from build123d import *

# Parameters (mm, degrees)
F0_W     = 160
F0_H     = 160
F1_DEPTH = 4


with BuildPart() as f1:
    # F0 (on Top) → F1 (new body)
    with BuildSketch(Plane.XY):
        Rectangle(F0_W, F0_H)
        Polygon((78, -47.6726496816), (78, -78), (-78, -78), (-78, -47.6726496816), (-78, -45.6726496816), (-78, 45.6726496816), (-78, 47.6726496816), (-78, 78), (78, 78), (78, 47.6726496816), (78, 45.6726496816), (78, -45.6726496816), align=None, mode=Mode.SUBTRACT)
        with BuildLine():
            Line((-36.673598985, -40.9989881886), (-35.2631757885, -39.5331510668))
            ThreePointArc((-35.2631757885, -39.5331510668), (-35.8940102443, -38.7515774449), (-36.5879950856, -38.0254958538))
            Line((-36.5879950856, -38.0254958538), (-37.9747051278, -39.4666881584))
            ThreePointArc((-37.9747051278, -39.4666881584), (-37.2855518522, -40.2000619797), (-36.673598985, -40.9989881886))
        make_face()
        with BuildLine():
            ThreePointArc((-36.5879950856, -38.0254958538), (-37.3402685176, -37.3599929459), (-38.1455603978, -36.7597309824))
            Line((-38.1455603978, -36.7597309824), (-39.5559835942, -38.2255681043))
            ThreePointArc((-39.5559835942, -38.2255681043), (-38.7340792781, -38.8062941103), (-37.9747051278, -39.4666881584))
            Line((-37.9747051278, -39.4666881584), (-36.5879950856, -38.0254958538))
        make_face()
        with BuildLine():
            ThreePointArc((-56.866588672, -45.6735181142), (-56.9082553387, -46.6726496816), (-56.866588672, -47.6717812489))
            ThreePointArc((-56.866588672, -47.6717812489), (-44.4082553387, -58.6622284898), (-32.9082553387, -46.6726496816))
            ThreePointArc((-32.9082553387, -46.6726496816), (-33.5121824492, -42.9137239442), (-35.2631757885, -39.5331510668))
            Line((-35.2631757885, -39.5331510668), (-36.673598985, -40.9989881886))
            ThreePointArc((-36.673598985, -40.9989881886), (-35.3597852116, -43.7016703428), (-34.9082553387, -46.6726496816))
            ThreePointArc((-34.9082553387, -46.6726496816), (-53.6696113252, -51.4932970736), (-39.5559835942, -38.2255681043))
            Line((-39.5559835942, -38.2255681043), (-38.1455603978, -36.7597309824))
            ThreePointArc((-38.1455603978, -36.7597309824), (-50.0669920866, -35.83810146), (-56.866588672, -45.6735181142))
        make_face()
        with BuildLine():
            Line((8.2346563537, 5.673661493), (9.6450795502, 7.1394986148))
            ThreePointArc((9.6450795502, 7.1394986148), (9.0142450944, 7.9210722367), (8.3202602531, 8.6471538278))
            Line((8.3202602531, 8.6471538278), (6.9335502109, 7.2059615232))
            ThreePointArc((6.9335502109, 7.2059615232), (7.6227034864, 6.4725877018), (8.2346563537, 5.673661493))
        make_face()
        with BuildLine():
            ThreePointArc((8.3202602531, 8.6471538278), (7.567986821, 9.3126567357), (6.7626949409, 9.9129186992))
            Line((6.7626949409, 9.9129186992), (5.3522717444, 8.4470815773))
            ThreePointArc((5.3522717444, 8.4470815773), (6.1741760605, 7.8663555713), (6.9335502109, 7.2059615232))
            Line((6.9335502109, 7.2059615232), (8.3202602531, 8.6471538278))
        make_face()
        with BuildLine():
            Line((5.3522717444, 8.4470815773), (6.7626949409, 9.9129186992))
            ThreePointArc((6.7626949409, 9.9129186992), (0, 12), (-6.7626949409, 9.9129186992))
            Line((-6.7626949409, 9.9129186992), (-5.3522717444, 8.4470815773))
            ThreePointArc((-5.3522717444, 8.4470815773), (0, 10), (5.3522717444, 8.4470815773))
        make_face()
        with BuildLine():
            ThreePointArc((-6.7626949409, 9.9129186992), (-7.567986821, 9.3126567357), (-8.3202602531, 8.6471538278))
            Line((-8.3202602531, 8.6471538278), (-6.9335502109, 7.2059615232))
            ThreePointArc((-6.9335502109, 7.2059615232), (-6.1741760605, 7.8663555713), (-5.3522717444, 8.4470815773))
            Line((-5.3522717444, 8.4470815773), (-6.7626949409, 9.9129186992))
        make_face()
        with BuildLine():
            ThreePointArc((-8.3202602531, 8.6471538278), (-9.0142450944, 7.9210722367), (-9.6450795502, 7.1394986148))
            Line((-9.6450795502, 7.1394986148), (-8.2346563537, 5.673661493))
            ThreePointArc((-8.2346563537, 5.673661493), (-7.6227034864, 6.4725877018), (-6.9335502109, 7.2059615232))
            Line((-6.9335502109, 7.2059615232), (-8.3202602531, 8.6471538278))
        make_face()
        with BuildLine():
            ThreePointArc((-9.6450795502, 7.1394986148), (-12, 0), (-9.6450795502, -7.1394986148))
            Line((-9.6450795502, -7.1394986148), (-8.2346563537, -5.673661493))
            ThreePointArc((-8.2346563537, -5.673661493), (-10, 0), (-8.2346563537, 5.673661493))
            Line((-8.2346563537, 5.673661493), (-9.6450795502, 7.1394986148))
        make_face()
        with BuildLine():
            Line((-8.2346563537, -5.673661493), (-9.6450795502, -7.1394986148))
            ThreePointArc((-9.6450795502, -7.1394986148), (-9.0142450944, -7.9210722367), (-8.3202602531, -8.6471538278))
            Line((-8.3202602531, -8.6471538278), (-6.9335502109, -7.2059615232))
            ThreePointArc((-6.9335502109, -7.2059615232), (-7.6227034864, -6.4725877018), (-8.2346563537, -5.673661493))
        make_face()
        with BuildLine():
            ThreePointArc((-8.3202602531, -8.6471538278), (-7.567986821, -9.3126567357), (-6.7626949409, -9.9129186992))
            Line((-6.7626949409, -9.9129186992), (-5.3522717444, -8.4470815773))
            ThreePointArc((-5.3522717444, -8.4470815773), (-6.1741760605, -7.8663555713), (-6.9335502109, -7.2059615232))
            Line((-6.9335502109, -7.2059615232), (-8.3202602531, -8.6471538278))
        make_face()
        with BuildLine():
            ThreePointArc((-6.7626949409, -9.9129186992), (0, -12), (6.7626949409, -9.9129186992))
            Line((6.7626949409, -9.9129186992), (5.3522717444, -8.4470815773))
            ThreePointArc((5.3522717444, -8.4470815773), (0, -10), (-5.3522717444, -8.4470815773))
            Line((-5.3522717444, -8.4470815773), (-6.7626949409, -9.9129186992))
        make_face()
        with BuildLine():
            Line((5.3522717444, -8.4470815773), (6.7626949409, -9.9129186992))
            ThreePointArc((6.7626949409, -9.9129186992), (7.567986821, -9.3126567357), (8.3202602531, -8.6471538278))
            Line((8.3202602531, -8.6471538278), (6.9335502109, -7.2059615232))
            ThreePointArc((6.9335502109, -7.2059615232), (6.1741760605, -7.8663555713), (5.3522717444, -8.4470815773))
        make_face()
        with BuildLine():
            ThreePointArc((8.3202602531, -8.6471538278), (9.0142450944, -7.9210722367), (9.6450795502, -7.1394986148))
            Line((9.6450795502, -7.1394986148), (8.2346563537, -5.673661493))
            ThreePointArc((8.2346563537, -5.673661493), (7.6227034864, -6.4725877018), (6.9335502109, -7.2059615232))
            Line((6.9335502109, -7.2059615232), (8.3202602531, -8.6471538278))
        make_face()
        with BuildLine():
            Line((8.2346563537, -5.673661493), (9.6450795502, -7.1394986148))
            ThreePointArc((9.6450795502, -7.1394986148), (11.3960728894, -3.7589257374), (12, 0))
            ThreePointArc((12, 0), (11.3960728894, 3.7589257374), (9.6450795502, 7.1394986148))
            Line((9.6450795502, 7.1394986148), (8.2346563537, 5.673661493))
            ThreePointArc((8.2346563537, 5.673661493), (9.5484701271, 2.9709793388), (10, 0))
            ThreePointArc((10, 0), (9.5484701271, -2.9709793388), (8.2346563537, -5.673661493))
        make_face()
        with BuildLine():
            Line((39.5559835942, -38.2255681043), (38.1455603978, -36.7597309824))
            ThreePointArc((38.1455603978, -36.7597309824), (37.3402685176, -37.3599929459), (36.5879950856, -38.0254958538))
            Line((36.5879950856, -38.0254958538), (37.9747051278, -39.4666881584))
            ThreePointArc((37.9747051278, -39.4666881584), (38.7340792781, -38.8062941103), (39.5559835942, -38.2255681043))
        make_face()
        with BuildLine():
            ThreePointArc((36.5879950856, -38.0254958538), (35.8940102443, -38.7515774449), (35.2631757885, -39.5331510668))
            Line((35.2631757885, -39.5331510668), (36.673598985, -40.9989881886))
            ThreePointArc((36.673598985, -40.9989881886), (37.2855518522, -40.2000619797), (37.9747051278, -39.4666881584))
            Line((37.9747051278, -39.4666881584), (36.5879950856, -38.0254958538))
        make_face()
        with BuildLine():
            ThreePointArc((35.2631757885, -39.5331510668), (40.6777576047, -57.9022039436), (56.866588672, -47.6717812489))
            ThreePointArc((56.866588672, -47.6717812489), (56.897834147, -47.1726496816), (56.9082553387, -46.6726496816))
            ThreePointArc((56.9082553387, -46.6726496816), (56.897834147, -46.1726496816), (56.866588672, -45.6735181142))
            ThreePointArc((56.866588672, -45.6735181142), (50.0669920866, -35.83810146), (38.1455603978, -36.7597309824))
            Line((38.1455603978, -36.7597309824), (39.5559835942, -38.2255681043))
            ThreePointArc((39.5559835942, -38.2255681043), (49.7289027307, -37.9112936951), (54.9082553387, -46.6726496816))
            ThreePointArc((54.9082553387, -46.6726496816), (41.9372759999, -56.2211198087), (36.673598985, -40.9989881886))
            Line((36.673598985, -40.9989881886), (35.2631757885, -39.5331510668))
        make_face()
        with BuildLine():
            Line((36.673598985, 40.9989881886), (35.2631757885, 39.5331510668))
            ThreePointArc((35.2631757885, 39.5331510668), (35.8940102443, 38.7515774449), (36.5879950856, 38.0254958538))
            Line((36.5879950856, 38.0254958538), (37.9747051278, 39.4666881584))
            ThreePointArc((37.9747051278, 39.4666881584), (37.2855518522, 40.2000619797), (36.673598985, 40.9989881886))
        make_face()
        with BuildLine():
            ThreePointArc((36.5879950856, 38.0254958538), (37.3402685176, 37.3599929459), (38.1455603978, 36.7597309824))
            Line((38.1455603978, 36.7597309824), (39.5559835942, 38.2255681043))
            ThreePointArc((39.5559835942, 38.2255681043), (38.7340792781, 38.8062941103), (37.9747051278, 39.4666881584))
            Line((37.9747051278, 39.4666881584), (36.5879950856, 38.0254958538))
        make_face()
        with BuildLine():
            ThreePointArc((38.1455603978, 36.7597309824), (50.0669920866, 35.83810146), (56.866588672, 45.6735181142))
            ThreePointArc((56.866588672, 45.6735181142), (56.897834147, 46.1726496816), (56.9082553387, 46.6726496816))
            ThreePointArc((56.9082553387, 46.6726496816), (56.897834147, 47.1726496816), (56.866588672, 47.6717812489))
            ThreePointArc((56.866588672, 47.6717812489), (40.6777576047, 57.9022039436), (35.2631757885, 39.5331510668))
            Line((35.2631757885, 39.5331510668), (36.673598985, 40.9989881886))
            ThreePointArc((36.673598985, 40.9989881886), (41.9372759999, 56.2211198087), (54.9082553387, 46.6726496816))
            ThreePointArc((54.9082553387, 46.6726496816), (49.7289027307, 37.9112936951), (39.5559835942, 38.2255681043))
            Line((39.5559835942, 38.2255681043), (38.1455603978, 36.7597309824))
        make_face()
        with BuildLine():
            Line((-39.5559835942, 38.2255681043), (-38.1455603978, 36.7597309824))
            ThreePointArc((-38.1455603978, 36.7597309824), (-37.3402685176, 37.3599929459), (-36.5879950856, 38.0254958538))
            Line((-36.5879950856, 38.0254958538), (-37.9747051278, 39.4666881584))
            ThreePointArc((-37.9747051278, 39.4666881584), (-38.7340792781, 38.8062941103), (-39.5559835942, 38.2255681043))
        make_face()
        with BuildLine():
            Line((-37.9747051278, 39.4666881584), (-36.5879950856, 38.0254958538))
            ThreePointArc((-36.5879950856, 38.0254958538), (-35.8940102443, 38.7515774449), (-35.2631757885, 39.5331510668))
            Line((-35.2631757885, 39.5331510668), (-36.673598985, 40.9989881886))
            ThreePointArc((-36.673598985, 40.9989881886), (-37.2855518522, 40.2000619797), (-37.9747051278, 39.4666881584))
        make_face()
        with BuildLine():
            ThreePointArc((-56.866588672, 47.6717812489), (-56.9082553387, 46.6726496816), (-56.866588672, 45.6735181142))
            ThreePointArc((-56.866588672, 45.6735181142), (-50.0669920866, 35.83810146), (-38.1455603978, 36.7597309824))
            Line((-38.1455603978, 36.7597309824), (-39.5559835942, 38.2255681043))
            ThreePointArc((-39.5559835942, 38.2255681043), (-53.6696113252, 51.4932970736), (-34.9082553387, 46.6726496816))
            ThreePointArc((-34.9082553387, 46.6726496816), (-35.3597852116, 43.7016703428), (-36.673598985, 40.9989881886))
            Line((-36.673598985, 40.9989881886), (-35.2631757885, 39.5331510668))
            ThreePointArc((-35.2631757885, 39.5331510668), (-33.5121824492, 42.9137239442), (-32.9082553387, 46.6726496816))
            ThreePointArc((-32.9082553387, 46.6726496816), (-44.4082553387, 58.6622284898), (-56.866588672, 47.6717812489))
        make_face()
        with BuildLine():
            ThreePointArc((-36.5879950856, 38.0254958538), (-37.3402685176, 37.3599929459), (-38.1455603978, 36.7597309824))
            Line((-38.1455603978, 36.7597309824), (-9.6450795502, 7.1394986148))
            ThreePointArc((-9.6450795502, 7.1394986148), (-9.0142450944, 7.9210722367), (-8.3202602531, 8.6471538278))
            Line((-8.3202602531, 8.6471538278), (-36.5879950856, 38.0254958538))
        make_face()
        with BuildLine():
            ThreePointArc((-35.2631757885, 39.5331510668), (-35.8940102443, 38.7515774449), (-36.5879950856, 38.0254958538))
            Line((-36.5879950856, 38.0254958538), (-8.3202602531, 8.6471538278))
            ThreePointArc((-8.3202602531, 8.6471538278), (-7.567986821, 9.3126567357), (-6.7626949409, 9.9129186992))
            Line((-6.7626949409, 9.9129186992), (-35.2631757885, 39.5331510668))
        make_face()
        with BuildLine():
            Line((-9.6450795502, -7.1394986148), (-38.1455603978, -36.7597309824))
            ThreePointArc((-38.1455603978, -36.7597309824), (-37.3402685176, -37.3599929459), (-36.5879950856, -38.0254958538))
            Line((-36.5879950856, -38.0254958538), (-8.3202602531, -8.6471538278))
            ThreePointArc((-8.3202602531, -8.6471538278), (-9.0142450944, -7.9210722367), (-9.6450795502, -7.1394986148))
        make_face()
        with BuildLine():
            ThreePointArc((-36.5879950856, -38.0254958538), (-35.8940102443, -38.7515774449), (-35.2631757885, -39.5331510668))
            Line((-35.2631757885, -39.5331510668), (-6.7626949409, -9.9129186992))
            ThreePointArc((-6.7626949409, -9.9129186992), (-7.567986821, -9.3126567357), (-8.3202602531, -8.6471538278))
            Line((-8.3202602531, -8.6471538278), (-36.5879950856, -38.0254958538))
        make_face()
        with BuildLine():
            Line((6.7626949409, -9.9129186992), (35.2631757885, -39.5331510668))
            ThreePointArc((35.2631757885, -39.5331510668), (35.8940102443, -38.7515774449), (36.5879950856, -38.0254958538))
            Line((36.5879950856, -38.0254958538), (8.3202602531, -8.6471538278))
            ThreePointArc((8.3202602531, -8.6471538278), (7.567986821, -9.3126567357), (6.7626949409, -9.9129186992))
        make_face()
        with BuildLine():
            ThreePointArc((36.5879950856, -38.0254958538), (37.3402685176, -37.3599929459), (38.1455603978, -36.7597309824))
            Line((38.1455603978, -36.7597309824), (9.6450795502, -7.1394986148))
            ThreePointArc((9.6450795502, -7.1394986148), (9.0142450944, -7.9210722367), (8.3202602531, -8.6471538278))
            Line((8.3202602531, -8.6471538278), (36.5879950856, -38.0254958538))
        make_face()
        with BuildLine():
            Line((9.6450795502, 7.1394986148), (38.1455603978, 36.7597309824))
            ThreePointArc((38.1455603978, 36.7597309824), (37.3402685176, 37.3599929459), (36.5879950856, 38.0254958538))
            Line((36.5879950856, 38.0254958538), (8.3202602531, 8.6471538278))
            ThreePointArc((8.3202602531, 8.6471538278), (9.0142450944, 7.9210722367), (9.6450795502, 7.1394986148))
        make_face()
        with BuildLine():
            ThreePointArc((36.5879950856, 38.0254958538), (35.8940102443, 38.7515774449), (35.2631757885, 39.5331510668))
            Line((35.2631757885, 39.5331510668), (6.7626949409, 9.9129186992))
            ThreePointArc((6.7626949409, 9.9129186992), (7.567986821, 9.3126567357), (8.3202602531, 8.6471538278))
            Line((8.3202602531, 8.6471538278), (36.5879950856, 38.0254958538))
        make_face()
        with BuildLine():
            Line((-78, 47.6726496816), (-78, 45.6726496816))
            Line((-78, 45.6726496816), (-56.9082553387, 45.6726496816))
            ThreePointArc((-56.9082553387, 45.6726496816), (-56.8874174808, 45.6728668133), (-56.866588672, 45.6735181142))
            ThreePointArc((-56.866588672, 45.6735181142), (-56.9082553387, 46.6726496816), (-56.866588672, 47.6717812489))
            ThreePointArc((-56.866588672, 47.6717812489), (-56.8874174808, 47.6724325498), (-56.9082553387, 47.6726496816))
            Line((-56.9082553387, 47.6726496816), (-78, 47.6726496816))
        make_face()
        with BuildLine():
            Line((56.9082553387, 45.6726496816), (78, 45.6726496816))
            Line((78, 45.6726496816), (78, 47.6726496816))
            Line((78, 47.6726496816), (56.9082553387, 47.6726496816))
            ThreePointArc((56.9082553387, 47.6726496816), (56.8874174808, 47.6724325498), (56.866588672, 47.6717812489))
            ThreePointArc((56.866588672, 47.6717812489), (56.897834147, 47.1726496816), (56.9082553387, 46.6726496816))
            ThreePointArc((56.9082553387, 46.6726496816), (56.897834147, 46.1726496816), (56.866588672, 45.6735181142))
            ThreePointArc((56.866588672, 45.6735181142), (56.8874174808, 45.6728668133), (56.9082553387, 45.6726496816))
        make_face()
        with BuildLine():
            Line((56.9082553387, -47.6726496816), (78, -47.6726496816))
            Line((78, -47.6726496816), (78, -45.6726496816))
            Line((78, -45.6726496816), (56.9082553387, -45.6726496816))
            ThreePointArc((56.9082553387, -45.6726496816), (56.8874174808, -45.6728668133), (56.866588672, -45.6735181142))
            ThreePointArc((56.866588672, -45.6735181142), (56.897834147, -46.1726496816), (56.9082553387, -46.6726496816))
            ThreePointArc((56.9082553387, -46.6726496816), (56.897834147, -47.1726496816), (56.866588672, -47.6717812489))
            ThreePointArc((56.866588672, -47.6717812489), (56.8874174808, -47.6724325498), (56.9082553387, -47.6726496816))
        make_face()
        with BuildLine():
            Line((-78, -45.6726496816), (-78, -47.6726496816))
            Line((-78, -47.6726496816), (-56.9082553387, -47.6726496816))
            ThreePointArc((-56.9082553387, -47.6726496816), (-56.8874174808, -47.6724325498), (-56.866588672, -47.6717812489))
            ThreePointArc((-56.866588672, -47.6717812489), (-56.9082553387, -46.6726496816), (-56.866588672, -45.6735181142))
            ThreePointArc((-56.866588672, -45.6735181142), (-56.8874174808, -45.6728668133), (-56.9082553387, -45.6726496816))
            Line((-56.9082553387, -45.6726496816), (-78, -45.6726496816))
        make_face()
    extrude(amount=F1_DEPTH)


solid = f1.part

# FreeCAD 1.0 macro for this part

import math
import FreeCAD as App
import Part
import Sketcher
Q = App.Units.Quantity

doc = App.newDocument("Part")
body = doc.addObject("PartDesign::Body", "Body")

# Sketch on XY plane
sketch1 = body.newObject("Sketcher::SketchObject", "Sketch")
sketch1.AttachmentSupport = (doc.getObject("XY_Plane"), [""])
sketch1.MapMode = "FlatFace"
sketch1.addGeometry(Part.LineSegment(App.Vector(-80, 80, 0), App.Vector(-80, -80, 0)), False)
sketch1.addGeometry(Part.LineSegment(App.Vector(-80, -80, 0), App.Vector(80, -80, 0)), False)
sketch1.addGeometry(Part.LineSegment(App.Vector(80, -80, 0), App.Vector(80, 80, 0)), False)
sketch1.addGeometry(Part.LineSegment(App.Vector(80, 80, 0), App.Vector(-80, 80, 0)), False)
sketch1.addGeometry(Part.ArcOfCircle(Part.Circle(App.Vector(44.908, -46.673, 0), App.Vector(0, 0, 1), 10), math.radians(122.36), math.radians(133.9)), False)
sketch1.addGeometry(Part.ArcOfCircle(Part.Circle(App.Vector(44.908, -46.673, 0), App.Vector(0, 0, 1), 10), math.radians(0), math.radians(122)), False)
sketch1.addGeometry(Part.ArcOfCircle(Part.Circle(App.Vector(44.908, -46.673, 0), App.Vector(0, 0, 1), 10), math.radians(145), math.radians(360)), False)
sketch1.addGeometry(Part.ArcOfCircle(Part.Circle(App.Vector(44.908, -46.673, 0), App.Vector(0, 0, 1), 10), math.radians(133.9), math.radians(145.43)), False)
sketch1.addGeometry(Part.LineSegment(App.Vector(-9.645, -7.139, 0), App.Vector(-38.146, -36.76, 0)), False)
sketch1.addGeometry(Part.ArcOfCircle(Part.Circle(App.Vector(-44.908, -46.673, 0), App.Vector(0, 0, 1), 12), math.radians(56), math.radians(175)), False)
sketch1.addGeometry(Part.ArcOfCircle(Part.Circle(App.Vector(-56.908, -46.673, 0), App.Vector(0, 0, 1), 1), math.radians(87.61), math.radians(90)), False)
sketch1.addGeometry(Part.LineSegment(App.Vector(-56.908, -45.673, 0), App.Vector(-78, -45.673, 0)), False)
sketch1.addGeometry(Part.LineSegment(App.Vector(-78, -45.673, 0), App.Vector(-78, 45.673, 0)), False)
sketch1.addGeometry(Part.LineSegment(App.Vector(-78, 45.673, 0), App.Vector(-56.908, 45.673, 0)), False)
sketch1.addGeometry(Part.ArcOfCircle(Part.Circle(App.Vector(-56.908, 46.673, 0), App.Vector(0, 0, 1), 1), math.radians(-90), math.radians(-87.61)), False)
sketch1.addGeometry(Part.ArcOfCircle(Part.Circle(App.Vector(-44.908, 46.673, 0), App.Vector(0, 0, 1), 12), math.radians(-175), math.radians(-56)), False)
sketch1.addGeometry(Part.LineSegment(App.Vector(-38.146, 36.76, 0), App.Vector(-9.645, 7.139, 0)), False)
sketch1.addGeometry(Part.ArcOfCircle(Part.Circle(App.Vector(0, 0, 0), App.Vector(0, 0, 1), 12), math.radians(143), math.radians(217)), False)
sketch1.addGeometry(Part.ArcOfCircle(Part.Circle(App.Vector(-44.908, -46.673, 0), App.Vector(0, 0, 1), 12), math.radians(-175), math.radians(0)), False)
sketch1.addGeometry(Part.ArcOfCircle(Part.Circle(App.Vector(-44.908, -46.673, 0), App.Vector(0, 0, 1), 12), math.radians(0), math.radians(37)), False)
sketch1.addGeometry(Part.LineSegment(App.Vector(-35.263, -39.533, 0), App.Vector(-6.763, -9.913, 0)), False)
sketch1.addGeometry(Part.ArcOfCircle(Part.Circle(App.Vector(0, 0, 0), App.Vector(0, 0, 1), 12), math.radians(-124), math.radians(-56)), False)
sketch1.addGeometry(Part.LineSegment(App.Vector(6.763, -9.913, 0), App.Vector(35.263, -39.533, 0)), False)
sketch1.addGeometry(Part.ArcOfCircle(Part.Circle(App.Vector(44.908, -46.673, 0), App.Vector(0, 0, 1), 12), math.radians(143), math.radians(355)), False)
sketch1.addGeometry(Part.ArcOfCircle(Part.Circle(App.Vector(56.908, -46.673, 0), App.Vector(0, 0, 1), 1), math.radians(-92.39), math.radians(-90)), False)
sketch1.addGeometry(Part.LineSegment(App.Vector(56.908, -47.673, 0), App.Vector(78, -47.673, 0)), False)
sketch1.addGeometry(Part.LineSegment(App.Vector(78, -47.673, 0), App.Vector(78, -78, 0)), False)
sketch1.addGeometry(Part.LineSegment(App.Vector(78, -78, 0), App.Vector(-78, -78, 0)), False)
sketch1.addGeometry(Part.LineSegment(App.Vector(-78, -78, 0), App.Vector(-78, -47.673, 0)), False)
sketch1.addGeometry(Part.LineSegment(App.Vector(-78, -47.673, 0), App.Vector(-56.908, -47.673, 0)), False)
sketch1.addGeometry(Part.ArcOfCircle(Part.Circle(App.Vector(-56.908, -46.673, 0), App.Vector(0, 0, 1), 1), math.radians(-90), math.radians(-87.61)), False)
sketch1.addGeometry(Part.ArcOfCircle(Part.Circle(App.Vector(-44.908, -46.673, 0), App.Vector(0, 0, 1), 10), math.radians(34.57), math.radians(46.1)), False)
sketch1.addGeometry(Part.ArcOfCircle(Part.Circle(App.Vector(-44.908, -46.673, 0), App.Vector(0, 0, 1), 10), math.radians(0), math.radians(35)), False)
sketch1.addGeometry(Part.ArcOfCircle(Part.Circle(App.Vector(-44.908, -46.673, 0), App.Vector(0, 0, 1), 10), math.radians(58), math.radians(360)), False)
sketch1.addGeometry(Part.ArcOfCircle(Part.Circle(App.Vector(-44.908, -46.673, 0), App.Vector(0, 0, 1), 10), math.radians(46.1), math.radians(57.64)), False)
sketch1.addGeometry(Part.ArcOfCircle(Part.Circle(App.Vector(-44.908, 46.673, 0), App.Vector(0, 0, 1), 10), math.radians(-35), math.radians(0)), False)
sketch1.addGeometry(Part.ArcOfCircle(Part.Circle(App.Vector(-44.908, 46.673, 0), App.Vector(0, 0, 1), 10), math.radians(-46.1), math.radians(-34.57)), False)
sketch1.addGeometry(Part.ArcOfCircle(Part.Circle(App.Vector(-44.908, 46.673, 0), App.Vector(0, 0, 1), 10), math.radians(-57.64), math.radians(-46.1)), False)
sketch1.addGeometry(Part.ArcOfCircle(Part.Circle(App.Vector(-44.908, 46.673, 0), App.Vector(0, 0, 1), 10), math.radians(0), math.radians(302)), False)
sketch1.addGeometry(Part.ArcOfCircle(Part.Circle(App.Vector(0, 0, 0), App.Vector(0, 0, 1), 10), math.radians(-46.1), math.radians(-34.57)), False)
sketch1.addGeometry(Part.ArcOfCircle(Part.Circle(App.Vector(0, 0, 0), App.Vector(0, 0, 1), 10), math.radians(-57.64), math.radians(-46.1)), False)
sketch1.addGeometry(Part.ArcOfCircle(Part.Circle(App.Vector(0, 0, 0), App.Vector(0, 0, 1), 10), math.radians(-122), math.radians(-58)), False)
sketch1.addGeometry(Part.ArcOfCircle(Part.Circle(App.Vector(0, 0, 0), App.Vector(0, 0, 1), 10), math.radians(-133.9), math.radians(-122.36)), False)
sketch1.addGeometry(Part.ArcOfCircle(Part.Circle(App.Vector(0, 0, 0), App.Vector(0, 0, 1), 10), math.radians(-145.43), math.radians(-133.9)), False)
sketch1.addGeometry(Part.ArcOfCircle(Part.Circle(App.Vector(0, 0, 0), App.Vector(0, 0, 1), 10), math.radians(145), math.radians(215)), False)
sketch1.addGeometry(Part.ArcOfCircle(Part.Circle(App.Vector(0, 0, 0), App.Vector(0, 0, 1), 10), math.radians(133.9), math.radians(145.43)), False)
sketch1.addGeometry(Part.ArcOfCircle(Part.Circle(App.Vector(0, 0, 0), App.Vector(0, 0, 1), 10), math.radians(122.36), math.radians(133.9)), False)
sketch1.addGeometry(Part.ArcOfCircle(Part.Circle(App.Vector(0, 0, 0), App.Vector(0, 0, 1), 10), math.radians(58), math.radians(122)), False)
sketch1.addGeometry(Part.ArcOfCircle(Part.Circle(App.Vector(0, 0, 0), App.Vector(0, 0, 1), 10), math.radians(46.1), math.radians(57.64)), False)
sketch1.addGeometry(Part.ArcOfCircle(Part.Circle(App.Vector(0, 0, 0), App.Vector(0, 0, 1), 10), math.radians(34.57), math.radians(46.1)), False)
sketch1.addGeometry(Part.ArcOfCircle(Part.Circle(App.Vector(0, 0, 0), App.Vector(0, 0, 1), 10), math.radians(0), math.radians(35)), False)
sketch1.addGeometry(Part.ArcOfCircle(Part.Circle(App.Vector(0, 0, 0), App.Vector(0, 0, 1), 10), math.radians(-35), math.radians(0)), False)
sketch1.addGeometry(Part.ArcOfCircle(Part.Circle(App.Vector(44.908, -46.673, 0), App.Vector(0, 0, 1), 12), math.radians(5), math.radians(124)), False)
sketch1.addGeometry(Part.LineSegment(App.Vector(38.146, -36.76, 0), App.Vector(9.645, -7.139, 0)), False)
sketch1.addGeometry(Part.ArcOfCircle(Part.Circle(App.Vector(0, 0, 0), App.Vector(0, 0, 1), 12), math.radians(-37), math.radians(0)), False)
sketch1.addGeometry(Part.ArcOfCircle(Part.Circle(App.Vector(0, 0, 0), App.Vector(0, 0, 1), 12), math.radians(0), math.radians(37)), False)
sketch1.addGeometry(Part.LineSegment(App.Vector(9.645, 7.139, 0), App.Vector(38.146, 36.76, 0)), False)
sketch1.addGeometry(Part.ArcOfCircle(Part.Circle(App.Vector(44.908, 46.673, 0), App.Vector(0, 0, 1), 12), math.radians(-124), math.radians(-5)), False)
sketch1.addGeometry(Part.ArcOfCircle(Part.Circle(App.Vector(56.908, 46.673, 0), App.Vector(0, 0, 1), 1), math.radians(-92.39), math.radians(-90)), False)
sketch1.addGeometry(Part.LineSegment(App.Vector(56.908, 45.673, 0), App.Vector(78, 45.673, 0)), False)
sketch1.addGeometry(Part.LineSegment(App.Vector(78, 45.673, 0), App.Vector(78, -45.673, 0)), False)
sketch1.addGeometry(Part.LineSegment(App.Vector(78, -45.673, 0), App.Vector(56.908, -45.673, 0)), False)
sketch1.addGeometry(Part.ArcOfCircle(Part.Circle(App.Vector(56.908, -46.673, 0), App.Vector(0, 0, 1), 1), math.radians(90), math.radians(92.39)), False)
sketch1.addGeometry(Part.LineSegment(App.Vector(-78, 47.673, 0), App.Vector(-78, 78, 0)), False)
sketch1.addGeometry(Part.LineSegment(App.Vector(-78, 78, 0), App.Vector(78, 78, 0)), False)
sketch1.addGeometry(Part.LineSegment(App.Vector(78, 78, 0), App.Vector(78, 47.673, 0)), False)
sketch1.addGeometry(Part.LineSegment(App.Vector(78, 47.673, 0), App.Vector(56.908, 47.673, 0)), False)
sketch1.addGeometry(Part.ArcOfCircle(Part.Circle(App.Vector(56.908, 46.673, 0), App.Vector(0, 0, 1), 1), math.radians(90), math.radians(92.39)), False)
sketch1.addGeometry(Part.ArcOfCircle(Part.Circle(App.Vector(44.908, 46.673, 0), App.Vector(0, 0, 1), 12), math.radians(5), math.radians(217)), False)
sketch1.addGeometry(Part.LineSegment(App.Vector(35.263, 39.533, 0), App.Vector(6.763, 9.913, 0)), False)
sketch1.addGeometry(Part.ArcOfCircle(Part.Circle(App.Vector(0, 0, 0), App.Vector(0, 0, 1), 12), math.radians(56), math.radians(124)), False)
sketch1.addGeometry(Part.LineSegment(App.Vector(-6.763, 9.913, 0), App.Vector(-35.263, 39.533, 0)), False)
sketch1.addGeometry(Part.ArcOfCircle(Part.Circle(App.Vector(-44.908, 46.673, 0), App.Vector(0, 0, 1), 12), math.radians(-37), math.radians(0)), False)
sketch1.addGeometry(Part.ArcOfCircle(Part.Circle(App.Vector(-44.908, 46.673, 0), App.Vector(0, 0, 1), 12), math.radians(0), math.radians(175)), False)
sketch1.addGeometry(Part.ArcOfCircle(Part.Circle(App.Vector(-56.908, 46.673, 0), App.Vector(0, 0, 1), 1), math.radians(87.61), math.radians(90)), False)
sketch1.addGeometry(Part.LineSegment(App.Vector(-56.908, 47.673, 0), App.Vector(-78, 47.673, 0)), False)
sketch1.addGeometry(Part.ArcOfCircle(Part.Circle(App.Vector(44.908, 46.673, 0), App.Vector(0, 0, 1), 10), math.radians(-145.43), math.radians(-133.9)), False)
sketch1.addGeometry(Part.ArcOfCircle(Part.Circle(App.Vector(44.908, 46.673, 0), App.Vector(0, 0, 1), 10), math.radians(0), math.radians(215)), False)
sketch1.addGeometry(Part.ArcOfCircle(Part.Circle(App.Vector(44.908, 46.673, 0), App.Vector(0, 0, 1), 10), math.radians(-122), math.radians(0)), False)
sketch1.addGeometry(Part.ArcOfCircle(Part.Circle(App.Vector(44.908, 46.673, 0), App.Vector(0, 0, 1), 10), math.radians(-133.9), math.radians(-122.36)), False)
sketch1.addConstraint(Sketcher.Constraint("Coincident", 0, 2, 1, 1))
sketch1.addConstraint(Sketcher.Constraint("Coincident", 1, 2, 2, 1))
sketch1.addConstraint(Sketcher.Constraint("Coincident", 2, 2, 3, 1))
sketch1.addConstraint(Sketcher.Constraint("Coincident", 3, 2, 0, 1))
sketch1.addConstraint(Sketcher.Constraint("Tangent", 4, 1, 5, 2))
sketch1.addConstraint(Sketcher.Constraint("Tangent", 5, 1, 6, 2))
sketch1.addConstraint(Sketcher.Constraint("Tangent", 6, 1, 7, 2))
sketch1.addConstraint(Sketcher.Constraint("Tangent", 7, 1, 4, 2))
sketch1.addConstraint(Sketcher.Constraint("Coincident", 8, 2, 9, 1))
sketch1.addConstraint(Sketcher.Constraint("Coincident", 9, 2, 10, 1))
sketch1.addConstraint(Sketcher.Constraint("Tangent", 10, 2, 11, 1))
sketch1.addConstraint(Sketcher.Constraint("Coincident", 11, 2, 12, 1))
sketch1.addConstraint(Sketcher.Constraint("Coincident", 12, 2, 13, 1))
sketch1.addConstraint(Sketcher.Constraint("Tangent", 13, 2, 14, 1))
sketch1.addConstraint(Sketcher.Constraint("Coincident", 14, 2, 15, 1))
sketch1.addConstraint(Sketcher.Constraint("Coincident", 15, 2, 16, 1))
sketch1.addConstraint(Sketcher.Constraint("Coincident", 16, 2, 17, 1))
sketch1.addConstraint(Sketcher.Constraint("Coincident", 17, 2, 8, 1))
sketch1.addConstraint(Sketcher.Constraint("Tangent", 18, 2, 19, 1))
sketch1.addConstraint(Sketcher.Constraint("Coincident", 19, 2, 20, 1))
sketch1.addConstraint(Sketcher.Constraint("Coincident", 20, 2, 21, 1))
sketch1.addConstraint(Sketcher.Constraint("Coincident", 21, 2, 22, 1))
sketch1.addConstraint(Sketcher.Constraint("Coincident", 22, 2, 23, 1))
sketch1.addConstraint(Sketcher.Constraint("Coincident", 23, 2, 24, 1))
sketch1.addConstraint(Sketcher.Constraint("Tangent", 24, 2, 25, 1))
sketch1.addConstraint(Sketcher.Constraint("Coincident", 25, 2, 26, 1))
sketch1.addConstraint(Sketcher.Constraint("Coincident", 26, 2, 27, 1))
sketch1.addConstraint(Sketcher.Constraint("Coincident", 27, 2, 28, 1))
sketch1.addConstraint(Sketcher.Constraint("Coincident", 28, 2, 29, 1))
sketch1.addConstraint(Sketcher.Constraint("Tangent", 29, 2, 30, 1))
sketch1.addConstraint(Sketcher.Constraint("Coincident", 30, 2, 18, 1))
sketch1.addConstraint(Sketcher.Constraint("Tangent", 31, 1, 32, 2))
sketch1.addConstraint(Sketcher.Constraint("Tangent", 32, 1, 33, 2))
sketch1.addConstraint(Sketcher.Constraint("Tangent", 33, 1, 34, 2))
sketch1.addConstraint(Sketcher.Constraint("Tangent", 34, 1, 31, 2))
sketch1.addConstraint(Sketcher.Constraint("Tangent", 35, 1, 36, 2))
sketch1.addConstraint(Sketcher.Constraint("Tangent", 36, 1, 37, 2))
sketch1.addConstraint(Sketcher.Constraint("Tangent", 37, 1, 38, 2))
sketch1.addConstraint(Sketcher.Constraint("Tangent", 38, 1, 35, 2))
sketch1.addConstraint(Sketcher.Constraint("Tangent", 39, 1, 40, 2))
sketch1.addConstraint(Sketcher.Constraint("Tangent", 40, 1, 41, 2))
sketch1.addConstraint(Sketcher.Constraint("Tangent", 41, 1, 42, 2))
sketch1.addConstraint(Sketcher.Constraint("Tangent", 42, 1, 43, 2))
sketch1.addConstraint(Sketcher.Constraint("Tangent", 43, 1, 44, 2))
sketch1.addConstraint(Sketcher.Constraint("Tangent", 44, 1, 45, 2))
sketch1.addConstraint(Sketcher.Constraint("Tangent", 45, 1, 46, 2))
sketch1.addConstraint(Sketcher.Constraint("Tangent", 46, 1, 47, 2))
sketch1.addConstraint(Sketcher.Constraint("Tangent", 47, 1, 48, 2))
sketch1.addConstraint(Sketcher.Constraint("Tangent", 48, 1, 49, 2))
sketch1.addConstraint(Sketcher.Constraint("Tangent", 49, 1, 50, 2))
sketch1.addConstraint(Sketcher.Constraint("Tangent", 50, 1, 51, 2))
sketch1.addConstraint(Sketcher.Constraint("Tangent", 51, 1, 39, 2))
sketch1.addConstraint(Sketcher.Constraint("Coincident", 52, 2, 53, 1))
sketch1.addConstraint(Sketcher.Constraint("Coincident", 53, 2, 54, 1))
sketch1.addConstraint(Sketcher.Constraint("Tangent", 54, 2, 55, 1))
sketch1.addConstraint(Sketcher.Constraint("Coincident", 55, 2, 56, 1))
sketch1.addConstraint(Sketcher.Constraint("Coincident", 56, 2, 57, 1))
sketch1.addConstraint(Sketcher.Constraint("Coincident", 57, 2, 58, 1))
sketch1.addConstraint(Sketcher.Constraint("Tangent", 58, 2, 59, 1))
sketch1.addConstraint(Sketcher.Constraint("Coincident", 59, 2, 60, 1))
sketch1.addConstraint(Sketcher.Constraint("Coincident", 60, 2, 61, 1))
sketch1.addConstraint(Sketcher.Constraint("Tangent", 61, 2, 62, 1))
sketch1.addConstraint(Sketcher.Constraint("Coincident", 62, 2, 52, 1))
sketch1.addConstraint(Sketcher.Constraint("Coincident", 63, 2, 64, 1))
sketch1.addConstraint(Sketcher.Constraint("Coincident", 64, 2, 65, 1))
sketch1.addConstraint(Sketcher.Constraint("Coincident", 65, 2, 66, 1))
sketch1.addConstraint(Sketcher.Constraint("Tangent", 66, 2, 67, 1))
sketch1.addConstraint(Sketcher.Constraint("Coincident", 67, 2, 68, 1))
sketch1.addConstraint(Sketcher.Constraint("Coincident", 68, 2, 69, 1))
sketch1.addConstraint(Sketcher.Constraint("Coincident", 69, 2, 70, 1))
sketch1.addConstraint(Sketcher.Constraint("Coincident", 70, 2, 71, 1))
sketch1.addConstraint(Sketcher.Constraint("Coincident", 71, 2, 72, 1))
sketch1.addConstraint(Sketcher.Constraint("Tangent", 72, 2, 73, 1))
sketch1.addConstraint(Sketcher.Constraint("Coincident", 73, 2, 74, 1))
sketch1.addConstraint(Sketcher.Constraint("Tangent", 74, 2, 75, 1))
sketch1.addConstraint(Sketcher.Constraint("Coincident", 75, 2, 63, 1))
sketch1.addConstraint(Sketcher.Constraint("Tangent", 76, 1, 77, 2))
sketch1.addConstraint(Sketcher.Constraint("Tangent", 77, 1, 78, 2))
sketch1.addConstraint(Sketcher.Constraint("Tangent", 78, 1, 79, 2))
sketch1.addConstraint(Sketcher.Constraint("Tangent", 79, 1, 76, 2))
sketch1.addConstraint(Sketcher.Constraint("Vertical", 0))
sketch1.addConstraint(Sketcher.Constraint("Horizontal", 1))
sketch1.addConstraint(Sketcher.Constraint("Vertical", 2))
sketch1.addConstraint(Sketcher.Constraint("Horizontal", 3))
sketch1.addConstraint(Sketcher.Constraint("Horizontal", 11))
sketch1.addConstraint(Sketcher.Constraint("Vertical", 12))
sketch1.addConstraint(Sketcher.Constraint("Horizontal", 13))
sketch1.addConstraint(Sketcher.Constraint("Horizontal", 25))
sketch1.addConstraint(Sketcher.Constraint("Vertical", 26))
sketch1.addConstraint(Sketcher.Constraint("Horizontal", 27))
sketch1.addConstraint(Sketcher.Constraint("Vertical", 28))
sketch1.addConstraint(Sketcher.Constraint("Horizontal", 29))
sketch1.addConstraint(Sketcher.Constraint("Horizontal", 59))
sketch1.addConstraint(Sketcher.Constraint("Vertical", 60))
sketch1.addConstraint(Sketcher.Constraint("Horizontal", 61))
sketch1.addConstraint(Sketcher.Constraint("Vertical", 63))
sketch1.addConstraint(Sketcher.Constraint("Horizontal", 64))
sketch1.addConstraint(Sketcher.Constraint("Vertical", 65))
sketch1.addConstraint(Sketcher.Constraint("Horizontal", 66))
sketch1.addConstraint(Sketcher.Constraint("Horizontal", 75))
sketch1.addConstraint(Sketcher.Constraint("Coincident", 17, 3, -1, 1))
sketch1.addConstraint(Sketcher.Constraint("Coincident", 21, 3, -1, 1))
sketch1.addConstraint(Sketcher.Constraint("Coincident", 39, 3, -1, 1))
sketch1.addConstraint(Sketcher.Constraint("Coincident", 41, 3, -1, 1))
sketch1.addConstraint(Sketcher.Constraint("Coincident", 43, 3, -1, 1))
sketch1.addConstraint(Sketcher.Constraint("Coincident", 45, 3, -1, 1))
sketch1.addConstraint(Sketcher.Constraint("Coincident", 47, 3, -1, 1))
sketch1.addConstraint(Sketcher.Constraint("Coincident", 49, 3, -1, 1))
sketch1.addConstraint(Sketcher.Constraint("Coincident", 54, 3, -1, 1))
sketch1.addConstraint(Sketcher.Constraint("Coincident", 70, 3, -1, 1))
sketch1.addConstraint(Sketcher.Constraint("Coincident", 18, 3, 9, 3))
sketch1.addConstraint(Sketcher.Constraint("Coincident", 23, 3, 4, 3))
sketch1.addConstraint(Sketcher.Constraint("Coincident", 30, 3, 10, 3))
sketch1.addConstraint(Sketcher.Constraint("Coincident", 31, 3, 9, 3))
sketch1.addConstraint(Sketcher.Constraint("Coincident", 35, 3, 15, 3))
sketch1.addConstraint(Sketcher.Constraint("Coincident", 52, 3, 4, 3))
sketch1.addConstraint(Sketcher.Constraint("Coincident", 62, 3, 24, 3))
sketch1.addConstraint(Sketcher.Constraint("Coincident", 67, 3, 58, 3))
sketch1.addConstraint(Sketcher.Constraint("Coincident", 68, 3, 57, 3))
sketch1.addConstraint(Sketcher.Constraint("Coincident", 72, 3, 15, 3))
sketch1.addConstraint(Sketcher.Constraint("Coincident", 74, 3, 14, 3))
sketch1.addConstraint(Sketcher.Constraint("Coincident", 76, 3, 57, 3))
sketch1.addConstraint(Sketcher.Constraint("Equal", 4, 5))
sketch1.addConstraint(Sketcher.Constraint("Equal", 10, 14))
sketch1.addConstraint(Sketcher.Constraint("Equal", 9, 15))
sketch1.addConstraint(Sketcher.Constraint("Equal", 15, 17))
sketch1.addConstraint(Sketcher.Constraint("Equal", 17, 18))
sketch1.addConstraint(Sketcher.Constraint("Equal", 18, 19))
sketch1.addConstraint(Sketcher.Constraint("Equal", 19, 21))
sketch1.addConstraint(Sketcher.Constraint("Equal", 21, 23))
sketch1.addConstraint(Sketcher.Constraint("Equal", 14, 24))
sketch1.addConstraint(Sketcher.Constraint("Equal", 24, 30))
sketch1.addConstraint(Sketcher.Constraint("Equal", 7, 31))
sketch1.addConstraint(Sketcher.Constraint("Equal", 31, 32))
sketch1.addConstraint(Sketcher.Constraint("Equal", 34, 35))
sketch1.addConstraint(Sketcher.Constraint("Equal", 35, 36))
sketch1.addConstraint(Sketcher.Constraint("Equal", 38, 39))
sketch1.addConstraint(Sketcher.Constraint("Equal", 23, 52))
sketch1.addConstraint(Sketcher.Constraint("Equal", 52, 54))
sketch1.addConstraint(Sketcher.Constraint("Equal", 54, 55))
sketch1.addConstraint(Sketcher.Constraint("Equal", 55, 57))
sketch1.addConstraint(Sketcher.Constraint("Equal", 30, 58))
sketch1.addConstraint(Sketcher.Constraint("Equal", 58, 62))
sketch1.addConstraint(Sketcher.Constraint("Equal", 62, 67))
sketch1.addConstraint(Sketcher.Constraint("Equal", 57, 68))
sketch1.addConstraint(Sketcher.Constraint("Equal", 68, 70))
sketch1.addConstraint(Sketcher.Constraint("Equal", 70, 72))
sketch1.addConstraint(Sketcher.Constraint("Equal", 72, 73))
sketch1.addConstraint(Sketcher.Constraint("Equal", 67, 74))
sketch1.addConstraint(Sketcher.Constraint("Equal", 51, 76))
sketch1.addConstraint(Sketcher.Constraint("Equal", 76, 77))
sketch1.addConstraint(Sketcher.Constraint("Symmetric", 4, 3, 15, 3, -1, 1))
sketch1.addConstraint(Sketcher.Constraint("Symmetric", 14, 3, 24, 3, -1, 1))
sketch1.addConstraint(Sketcher.Constraint("Symmetric", 9, 3, 57, 3, -1, 1))
sketch1.addConstraint(Sketcher.Constraint("Symmetric", 10, 3, 58, 3, -1, 1))
sketch1.addConstraint(Sketcher.Constraint("Symmetric", 0, 2, 2, 2, -1, 1))
sketch1.addConstraint(Sketcher.Constraint("Symmetric", 26, 2, 63, 2, -1, 1))
sketch1.addConstraint(Sketcher.Constraint("Symmetric", 4, 3, 9, 3, -2))
sketch1.addConstraint(Sketcher.Constraint("Symmetric", 10, 3, 24, 3, -2))
sketch1.addConstraint(Sketcher.Constraint("PointOnObject", 50, 1, -1))
sketch1.addConstraint(Sketcher.Constraint("PointOnObject", 54, 2, -1))
sketch1.addConstraint(Sketcher.Constraint("Parallel", 8, 20))
sketch1.addConstraint(Sketcher.Constraint("Parallel", 16, 22))
sketch1.addConstraint(Sketcher.Constraint("Parallel", 22, 53))
sketch1.addConstraint(Sketcher.Constraint("Parallel", 20, 56))
sketch1.addConstraint(Sketcher.Constraint("Parallel", 56, 69))
sketch1.addConstraint(Sketcher.Constraint("Parallel", 53, 71))
sketch1.addConstraint(Sketcher.Constraint("Horizontal", 9, 3, 10, 3))
sketch1.addConstraint(Sketcher.Constraint("Horizontal", 62, 3, 5, 1))
sketch1.addConstraint(Sketcher.Constraint("Horizontal", 5, 1, 18, 2))
sketch1.addConstraint(Sketcher.Constraint("Horizontal", 20, 2, 21, 2))
sketch1.addConstraint(Sketcher.Constraint("Horizontal", 19, 2, 22, 2))
sketch1.addConstraint(Sketcher.Constraint("Horizontal", 6, 1, 31, 1))
sketch1.addConstraint(Sketcher.Constraint("Horizontal", 18, 2, 32, 1))
sketch1.addConstraint(Sketcher.Constraint("Horizontal", 4, 1, 33, 1))
sketch1.addConstraint(Sketcher.Constraint("Horizontal", 7, 1, 34, 1))
sketch1.addConstraint(Sketcher.Constraint("Horizontal", 79, 3, 38, 1))
sketch1.addConstraint(Sketcher.Constraint("Horizontal", 40, 1, 41, 1))
sketch1.addConstraint(Sketcher.Constraint("Horizontal", 39, 1, 42, 1))
sketch1.addConstraint(Sketcher.Constraint("Horizontal", 46, 1, 47, 1))
sketch1.addConstraint(Sketcher.Constraint("Horizontal", 45, 1, 48, 1))
sketch1.addConstraint(Sketcher.Constraint("Horizontal", 44, 1, 49, 1))
sketch1.addConstraint(Sketcher.Constraint("Horizontal", 43, 1, 51, 1))
sketch1.addConstraint(Sketcher.Constraint("Horizontal", 8, 2, 52, 2))
sketch1.addConstraint(Sketcher.Constraint("Horizontal", 16, 2, 55, 2))
sketch1.addConstraint(Sketcher.Constraint("Horizontal", 69, 2, 70, 2))
sketch1.addConstraint(Sketcher.Constraint("Horizontal", 38, 1, 72, 2))
sketch1.addConstraint(Sketcher.Constraint("Horizontal", 35, 1, 76, 1))
sketch1.addConstraint(Sketcher.Constraint("Horizontal", 72, 2, 77, 1))
sketch1.addConstraint(Sketcher.Constraint("Horizontal", 37, 1, 78, 1))
sketch1.addConstraint(Sketcher.Constraint("Horizontal", 36, 1, 79, 1))
sketch1.addConstraint(Sketcher.Constraint("Vertical", 8, 2, 15, 2))
sketch1.addConstraint(Sketcher.Constraint("Vertical", 12, 2, 27, 2))
sketch1.addConstraint(Sketcher.Constraint("Vertical", 31, 1, 35, 1))
sketch1.addConstraint(Sketcher.Constraint("Vertical", 34, 1, 36, 1))
sketch1.addConstraint(Sketcher.Constraint("Vertical", 33, 1, 37, 1))
sketch1.addConstraint(Sketcher.Constraint("Vertical", 43, 1, 44, 1))
sketch1.addConstraint(Sketcher.Constraint("Vertical", 42, 1, 45, 1))
sketch1.addConstraint(Sketcher.Constraint("Vertical", 41, 1, 46, 1))
sketch1.addConstraint(Sketcher.Constraint("Vertical", 26, 2, 59, 2))
sketch1.addConstraint(Sketcher.Constraint("Vertical", 28, 2, 63, 2))
sketch1.addConstraint(Sketcher.Constraint("Vertical", 60, 2, 64, 2))
sketch1.addConstraint(Sketcher.Constraint("Vertical", 22, 2, 68, 2))
sketch1.addConstraint(Sketcher.Constraint("Equal", 3, 0))
sketch1.addConstraint(Sketcher.Constraint("Equal", 16, 20))
sketch1.addConstraint(Sketcher.Constraint("Radius", 4, Q("10 mm")))
sketch1.addConstraint(Sketcher.Constraint("Radius", 9, Q("12 mm")))
sketch1.addConstraint(Sketcher.Constraint("Radius", 10, Q("1 mm")))
sketch1.addConstraint(Sketcher.Constraint("DistanceX", 1, 1, 1, 2, Q("160 mm")))
sketch1.addConstraint(Sketcher.Constraint("DistanceX", 27, 2, 27, 1, Q("156 mm")))
sketch1.addConstraint(Sketcher.Constraint("DistanceY", 26, 2, -1, 1, Q("78 mm")))
sketch1.addConstraint(Sketcher.Constraint("DistanceY", 12, 1, 12, 2, Q("91.345299 mm")))
sketch1.addConstraint(Sketcher.Constraint("DistanceX", -1, 1, 6, 1, Q("36.673599 mm")))
sketch1.addConstraint(Sketcher.Constraint("DistanceY", -1, 1, 16, 2, Q("7.139499 mm")))
sketch1.addConstraint(Sketcher.Constraint("DistanceX", 11, 2, 11, 1, Q("21.091745 mm")))
sketch1.addConstraint(Sketcher.Constraint("DistanceY", 4, 1, -1, 1, Q("38.225568 mm")))
sketch1.addConstraint(Sketcher.Constraint("DistanceY", 6, 1, -1, 1, Q("40.998988 mm")))
sketch1.addConstraint(Sketcher.Constraint("DistanceY", 7, 1, -1, 1, Q("39.466688 mm")))
sketch1.addConstraint(Sketcher.Constraint("DistanceX", 8, 2, -1, 1, Q("38.14556 mm")))
sketch1.addConstraint(Sketcher.Constraint("DistanceX", -1, 1, 39, 1, Q("6.93355 mm")))
sketch1.addConstraint(Sketcher.Constraint("DistanceX", -1, 1, 40, 1, Q("5.352272 mm")))
sketch1.addConstraint(Sketcher.Constraint("DistanceY", 43, 1, -1, 1, Q("5.673661 mm")))
pad1 = body.newObject("PartDesign::Pad", "Pad")
pad1.Profile = sketch1
pad1.Length = 4

doc.recompute()
